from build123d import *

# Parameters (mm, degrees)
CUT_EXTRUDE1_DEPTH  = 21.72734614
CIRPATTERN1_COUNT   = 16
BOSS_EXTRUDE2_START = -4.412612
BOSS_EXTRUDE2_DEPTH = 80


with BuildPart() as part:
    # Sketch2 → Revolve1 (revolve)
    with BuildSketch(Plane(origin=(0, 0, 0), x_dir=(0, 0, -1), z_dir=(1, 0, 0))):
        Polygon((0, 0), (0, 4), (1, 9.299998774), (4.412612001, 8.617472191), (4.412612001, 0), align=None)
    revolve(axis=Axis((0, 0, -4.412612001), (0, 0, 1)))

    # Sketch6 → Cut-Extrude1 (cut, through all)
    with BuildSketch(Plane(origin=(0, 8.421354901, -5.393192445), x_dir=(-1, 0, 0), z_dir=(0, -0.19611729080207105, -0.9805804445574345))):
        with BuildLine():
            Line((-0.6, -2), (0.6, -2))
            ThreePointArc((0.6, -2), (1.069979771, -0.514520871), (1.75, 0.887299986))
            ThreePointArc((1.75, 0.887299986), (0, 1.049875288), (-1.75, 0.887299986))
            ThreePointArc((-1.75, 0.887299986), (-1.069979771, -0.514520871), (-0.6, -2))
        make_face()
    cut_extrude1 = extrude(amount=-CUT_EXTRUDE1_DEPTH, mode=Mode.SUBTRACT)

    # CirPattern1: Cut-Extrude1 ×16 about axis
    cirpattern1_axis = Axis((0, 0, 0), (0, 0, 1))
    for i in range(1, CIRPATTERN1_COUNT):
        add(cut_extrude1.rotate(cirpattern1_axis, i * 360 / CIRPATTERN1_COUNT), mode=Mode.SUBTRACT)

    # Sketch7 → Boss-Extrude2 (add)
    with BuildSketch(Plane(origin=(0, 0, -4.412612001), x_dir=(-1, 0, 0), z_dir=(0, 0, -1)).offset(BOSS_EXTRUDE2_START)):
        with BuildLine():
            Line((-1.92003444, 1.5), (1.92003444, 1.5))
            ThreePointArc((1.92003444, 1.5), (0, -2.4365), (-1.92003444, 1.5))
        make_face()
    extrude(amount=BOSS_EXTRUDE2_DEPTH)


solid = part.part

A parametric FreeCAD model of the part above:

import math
import FreeCAD as App
import Part
import Sketcher

V = App.Vector
Q = App.Units.Quantity


def add_polygon(sketch, points):
    """Adds a closed chain of lines whose ends are joined by coincident constraints."""
    first, n = sketch.GeometryCount, len(points)
    for a, b in zip(points, points[1:] + points[:1]):
        sketch.addGeometry(Part.LineSegment(App.Vector(*a, 0), App.Vector(*b, 0)), False)
    for i in range(n):
        sketch.addConstraint(Sketcher.Constraint("Coincident", first + i, 2, first + (i + 1) % n, 1))

doc = App.newDocument("Part")
body = doc.addObject("PartDesign::Body", "Body")

sketch1 = body.newObject("Sketcher::SketchObject", "Sketch")
sketch1.AttachmentSupport = (doc.getObject("YZ_Plane"), [""])
sketch1.MapMode = "FlatFace"
add_polygon(sketch1, [(4, 0), (0, 0), (0, -4.412612), (8.617472, -4.412612), (9.299999, -1)])
sketch1.addConstraint(Sketcher.Constraint("Horizontal", 0))
sketch1.addConstraint(Sketcher.Constraint("Vertical", 1))
sketch1.addConstraint(Sketcher.Constraint("Horizontal", 2))
sketch1.addConstraint(Sketcher.Constraint("Coincident", 0, 2, -1, 1))
sketch1.addConstraint(Sketcher.Constraint("DistanceX", 0, 2, 0, 1, 4.0))
sketch1.addConstraint(Sketcher.Constraint("DistanceY", 3, 2, -1, 1, 1.0))
sketch1.addConstraint(Sketcher.Constraint("DistanceX", -1, 1, 3, 2, 9.299999))
sketch1.addConstraint(Sketcher.Constraint("Angle", 3, Q("78.69 deg")))
sketch1.addConstraint(Sketcher.Constraint("DistanceX", 2, 1, 2, 2, 8.617472))
revolution = body.newObject("PartDesign::Revolution", "Revolution")
revolution.Profile = sketch1
revolution.ReferenceAxis = (sketch1, ["V_Axis"])
revolution.Angle = 360

sketch2 = body.newObject("Sketcher::SketchObject", "Sketch001")
sketch2.Placement = App.Placement(V(0, 8.421355, -5.393192), App.Rotation(V(-1, 0, 0), V(0, 0.980580445, -0.196117291), V(0, -0.196117291, -0.980580445), "ZXY"))
sketch2.addGeometry(Part.LineSegment(V(-0.6, -2, 0), V(0.6, -2, 0)), False)
sketch2.addGeometry(Part.ArcOfCircle(Part.Circle(V(11.044984, -4.487525, 0), V(0, 0, 1), 10.737108), math.radians(149.96135), math.radians(166.604262)), False)
sketch2.addGeometry(Part.ArcOfCircle(Part.Circle(V(0, -8.450125, 0), V(0, 0, 1), 9.5), math.radians(79.384892), math.radians(100.615108)), False)
sketch2.addGeometry(Part.ArcOfCircle(Part.Circle(V(-11.044984, -4.487525, 0), V(0, 0, 1), 10.737108), math.radians(13.395738), math.radians(30.03865)), False)
sketch2.addConstraint(Sketcher.Constraint("Coincident", 0, 2, 1, 2))
sketch2.addConstraint(Sketcher.Constraint("Coincident", 1, 1, 2, 1))
sketch2.addConstraint(Sketcher.Constraint("Coincident", 2, 2, 3, 2))
sketch2.addConstraint(Sketcher.Constraint("Coincident", 3, 1, 0, 1))
sketch2.addConstraint(Sketcher.Constraint("Horizontal", 0))
sketch2.addConstraint(Sketcher.Constraint("Equal", 1, 3))
sketch2.addConstraint(Sketcher.Constraint("Symmetric", 1, 3, 3, 3, -2))
sketch2.addConstraint(Sketcher.Constraint("PointOnObject", 2, 3, -2))
sketch2.addConstraint(Sketcher.Constraint("Radius", 2, 9.5))
sketch2.addConstraint(Sketcher.Constraint("DistanceX", 0, 1, 0, 2, 1.2))
sketch2.addConstraint(Sketcher.Constraint("DistanceY", 0, 2, -1, 1, 2.0))
sketch2.addConstraint(Sketcher.Constraint("DistanceX", 2, 2, 1, 1, 3.5))
sketch2.addConstraint(Sketcher.Constraint("Radius", 1, 10.737108))
sketch2.addConstraint(Sketcher.Constraint("DistanceY", -1, 1, 1, 1, 0.8873))
pocket1 = body.newObject("PartDesign::Pocket", "Pocket")
pocket1.Profile = sketch2
pocket1.Type = "ThroughAll"
doc.recompute()

polarpattern = body.newObject("PartDesign::PolarPattern", "PolarPattern")
polarpattern.Originals = [pocket1]
polarpattern.Axis = (doc.getObject("Z_Axis"), [""])
polarpattern.Angle = 360
polarpattern.Occurrences = 16
body.Tip = polarpattern

sketch3 = body.newObject("Sketcher::SketchObject", "Sketch002")
sketch3.AttachmentSupport = (doc.getObject("XY_Plane"), [""])
sketch3.MapMode = "FlatFace"
sketch3.addGeometry(Part.LineSegment(V(-1.920034, 1.5, 0), V(1.920034, 1.5, 0)), False)
sketch3.addGeometry(Part.ArcOfCircle(Part.Circle(V(0, 0, 0), V(0, 0, 1), 2.4365), math.radians(142.001766), math.radians(397.998234)), False)
sketch3.addConstraint(Sketcher.Constraint("Coincident", 0, 1, 1, 1))
sketch3.addConstraint(Sketcher.Constraint("Coincident", 1, 2, 0, 2))
sketch3.addConstraint(Sketcher.Constraint("Horizontal", 0))
sketch3.addConstraint(Sketcher.Constraint("Coincident", 1, 3, -1, 1))
sketch3.addConstraint(Sketcher.Constraint("DistanceY", -1, 1, 0, 1, 1.5))
sketch3.addConstraint(Sketcher.Constraint("Radius", 1, 2.4365))
pad1 = body.newObject("PartDesign::Pad", "Pad")
pad1.Profile = sketch3
pad1.Length = 80
pad1.Reversed = True

doc.recompute()
